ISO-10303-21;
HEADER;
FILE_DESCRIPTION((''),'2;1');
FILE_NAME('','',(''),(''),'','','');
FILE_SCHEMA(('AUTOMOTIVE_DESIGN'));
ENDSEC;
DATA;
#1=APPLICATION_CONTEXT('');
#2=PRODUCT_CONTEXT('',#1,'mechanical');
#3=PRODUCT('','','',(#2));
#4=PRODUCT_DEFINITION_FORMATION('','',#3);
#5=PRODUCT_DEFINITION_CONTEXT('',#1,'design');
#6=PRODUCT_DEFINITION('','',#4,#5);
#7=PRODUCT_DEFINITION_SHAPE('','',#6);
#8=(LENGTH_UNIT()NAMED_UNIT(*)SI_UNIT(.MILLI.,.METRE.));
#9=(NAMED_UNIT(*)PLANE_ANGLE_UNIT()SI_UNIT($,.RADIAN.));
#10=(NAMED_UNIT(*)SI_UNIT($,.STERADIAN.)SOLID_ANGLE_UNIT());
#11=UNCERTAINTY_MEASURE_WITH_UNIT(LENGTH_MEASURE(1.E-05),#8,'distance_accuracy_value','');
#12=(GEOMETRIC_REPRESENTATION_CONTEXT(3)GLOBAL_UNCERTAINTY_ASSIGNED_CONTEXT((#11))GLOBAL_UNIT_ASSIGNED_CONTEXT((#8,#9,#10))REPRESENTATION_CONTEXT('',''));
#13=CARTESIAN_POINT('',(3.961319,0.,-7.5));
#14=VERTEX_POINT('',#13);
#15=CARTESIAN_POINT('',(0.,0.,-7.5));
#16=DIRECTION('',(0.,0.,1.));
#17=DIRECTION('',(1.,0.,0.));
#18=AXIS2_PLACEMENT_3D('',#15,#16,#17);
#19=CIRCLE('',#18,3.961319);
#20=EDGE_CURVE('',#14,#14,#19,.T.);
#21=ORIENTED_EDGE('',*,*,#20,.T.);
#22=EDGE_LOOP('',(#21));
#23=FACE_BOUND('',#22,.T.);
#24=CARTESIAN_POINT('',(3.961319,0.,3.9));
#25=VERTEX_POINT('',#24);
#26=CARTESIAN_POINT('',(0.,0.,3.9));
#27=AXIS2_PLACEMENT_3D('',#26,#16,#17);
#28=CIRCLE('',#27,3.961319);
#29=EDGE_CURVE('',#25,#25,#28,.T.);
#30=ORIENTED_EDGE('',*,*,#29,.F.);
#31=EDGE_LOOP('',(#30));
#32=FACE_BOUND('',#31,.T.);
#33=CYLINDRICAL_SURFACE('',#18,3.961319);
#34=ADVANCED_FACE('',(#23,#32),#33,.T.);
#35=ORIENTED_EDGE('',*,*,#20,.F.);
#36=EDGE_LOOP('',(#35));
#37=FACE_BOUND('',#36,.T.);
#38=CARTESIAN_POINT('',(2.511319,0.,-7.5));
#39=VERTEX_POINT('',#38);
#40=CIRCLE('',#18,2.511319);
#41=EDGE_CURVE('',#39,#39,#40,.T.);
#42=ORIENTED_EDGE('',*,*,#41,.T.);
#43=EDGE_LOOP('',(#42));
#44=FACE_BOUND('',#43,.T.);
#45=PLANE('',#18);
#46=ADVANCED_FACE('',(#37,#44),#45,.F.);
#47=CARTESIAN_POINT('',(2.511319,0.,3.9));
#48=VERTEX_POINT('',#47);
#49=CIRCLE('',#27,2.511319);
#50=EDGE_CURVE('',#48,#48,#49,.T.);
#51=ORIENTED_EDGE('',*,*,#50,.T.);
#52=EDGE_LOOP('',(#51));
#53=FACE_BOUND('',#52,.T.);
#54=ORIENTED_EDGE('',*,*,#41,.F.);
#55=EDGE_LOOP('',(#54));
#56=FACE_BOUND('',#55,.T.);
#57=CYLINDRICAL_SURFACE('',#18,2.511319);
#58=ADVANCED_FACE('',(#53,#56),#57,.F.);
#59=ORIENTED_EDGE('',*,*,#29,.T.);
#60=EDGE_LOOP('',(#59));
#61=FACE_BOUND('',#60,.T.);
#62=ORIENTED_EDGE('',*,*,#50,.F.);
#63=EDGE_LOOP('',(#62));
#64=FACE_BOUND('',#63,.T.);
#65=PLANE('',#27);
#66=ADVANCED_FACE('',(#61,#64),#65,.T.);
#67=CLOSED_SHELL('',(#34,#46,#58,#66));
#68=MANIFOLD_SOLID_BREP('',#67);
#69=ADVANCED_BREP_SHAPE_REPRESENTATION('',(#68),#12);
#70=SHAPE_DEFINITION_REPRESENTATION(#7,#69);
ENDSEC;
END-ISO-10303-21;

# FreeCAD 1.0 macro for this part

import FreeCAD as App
import Part
import Sketcher

V = App.Vector
Q = App.Units.Quantity

doc = App.newDocument("Part")
body = doc.addObject("PartDesign::Body", "Body")

# Sketch on XY plane
sketch1 = body.newObject("Sketcher::SketchObject", "Sketch")
sketch1.AttachmentSupport = (doc.getObject("XY_Plane"), [""])
sketch1.MapMode = "FlatFace"
sketch1.addGeometry(Part.Circle(V(0, 0, 0), V(0, 0, 1), 4), False)
sketch1.addGeometry(Part.Circle(V(0, 0, 0), V(0, 0, 1), 2.5), False)
sketch1.addConstraint(Sketcher.Constraint("Coincident", 0, 3, -1, 1))
sketch1.addConstraint(Sketcher.Constraint("Coincident", 1, 3, -1, 1))
sketch1.addConstraint(Sketcher.Constraint("Diameter", 0, Q("7.922638 mm")))
sketch1.addConstraint(Sketcher.Constraint("Diameter", 1, Q("5.022638 mm")))
pad1 = body.newObject("PartDesign::Pad", "Pad")
pad1.Profile = sketch1
pad1.Type = "TwoLengths"
pad1.Length = 3.9
pad1.Length2 = 7.5

doc.recompute()
